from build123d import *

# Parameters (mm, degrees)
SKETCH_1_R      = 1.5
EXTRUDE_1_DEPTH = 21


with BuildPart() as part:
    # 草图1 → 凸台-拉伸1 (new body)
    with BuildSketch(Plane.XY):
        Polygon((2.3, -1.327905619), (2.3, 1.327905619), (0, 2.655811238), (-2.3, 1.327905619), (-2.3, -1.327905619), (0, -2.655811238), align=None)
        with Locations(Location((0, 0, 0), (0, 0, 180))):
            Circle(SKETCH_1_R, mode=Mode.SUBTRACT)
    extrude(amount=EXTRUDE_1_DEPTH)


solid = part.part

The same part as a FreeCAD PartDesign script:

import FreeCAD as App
import Part
import Sketcher
from FreeCAD import Vector
Q = App.Units.Quantity

doc = App.newDocument("Part")
params = doc.addObject("Spreadsheet::Sheet", "Params")
for row, (alias, value) in enumerate([
    ("sketch1_diameter", "3 mm"),
    ("pad1_length", "21 mm"),
], start=1):
    params.set(f"A{row}", alias)
    params.set(f"B{row}", "=" + value)
    params.setAlias(f"B{row}", alias)

body = doc.addObject("PartDesign::Body", "Body")

# Sketch on XY plane
sketch1 = body.newObject("Sketcher::SketchObject", "Sketch")
sketch1.AttachmentSupport = (doc.getObject("XY_Plane"), [""])
sketch1.MapMode = "FlatFace"
sketch1.addGeometry(Part.LineSegment(Vector(2.3, -1.3, 0), Vector(2.3, 1.3, 0)), False)
sketch1.addGeometry(Part.LineSegment(Vector(2.3, 1.3, 0), Vector(0, 2.7, 0)), False)
sketch1.addGeometry(Part.LineSegment(Vector(0, 2.7, 0), Vector(-2.3, 1.3, 0)), False)
sketch1.addGeometry(Part.LineSegment(Vector(-2.3, 1.3, 0), Vector(-2.3, -1.3, 0)), False)
sketch1.addGeometry(Part.LineSegment(Vector(-2.3, -1.3, 0), Vector(0, -2.7, 0)), False)
sketch1.addGeometry(Part.LineSegment(Vector(0, -2.7, 0), Vector(2.3, -1.3, 0)), False)
sketch1.addGeometry(Part.Circle(Vector(0, 0, 0), Vector(0, 0, 1), 1.5), False)
sketch1.addConstraint(Sketcher.Constraint("Coincident", 0, 2, 1, 1))
sketch1.addConstraint(Sketcher.Constraint("Coincident", 1, 2, 2, 1))
sketch1.addConstraint(Sketcher.Constraint("Coincident", 2, 2, 3, 1))
sketch1.addConstraint(Sketcher.Constraint("Coincident", 3, 2, 4, 1))
sketch1.addConstraint(Sketcher.Constraint("Coincident", 4, 2, 5, 1))
sketch1.addConstraint(Sketcher.Constraint("Coincident", 5, 2, 0, 1))
sketch1.addConstraint(Sketcher.Constraint("Vertical", 0))
sketch1.addConstraint(Sketcher.Constraint("Vertical", 3))
sketch1.addConstraint(Sketcher.Constraint("Coincident", 6, 3, -1, 1))
sketch1.addConstraint(Sketcher.Constraint("Symmetric", 0, 2, 3, 2, -1, 1))
sketch1.addConstraint(Sketcher.Constraint("Symmetric", 1, 2, 4, 2, -1, 1))
sketch1.addConstraint(Sketcher.Constraint("PointOnObject", 1, 2, -2))
sketch1.addConstraint(Sketcher.Constraint("Parallel", 2, 5))
sketch1.addConstraint(Sketcher.Constraint("Horizontal", 0, 2, 2, 2))
sketch1.addConstraint(Sketcher.Constraint("Diameter", 6, Q("3 mm")))
sketch1.addConstraint(Sketcher.Constraint("Angle", 1, Q("150 deg")))
sketch1.addConstraint(Sketcher.Constraint("DistanceX", -1, 1, 0, 2, Q("2.3 mm")))
sketch1.addConstraint(Sketcher.Constraint("DistanceY", 0, 1, 0, 2, Q("2.655811 mm")))
sketch1.setExpression("Constraints[14]", "Params.sketch1_diameter")
pad1 = body.newObject("PartDesign::Pad", "Pad")
pad1.Profile = sketch1
pad1.setExpression("Length", "Params.pad1_length")

doc.recompute()
